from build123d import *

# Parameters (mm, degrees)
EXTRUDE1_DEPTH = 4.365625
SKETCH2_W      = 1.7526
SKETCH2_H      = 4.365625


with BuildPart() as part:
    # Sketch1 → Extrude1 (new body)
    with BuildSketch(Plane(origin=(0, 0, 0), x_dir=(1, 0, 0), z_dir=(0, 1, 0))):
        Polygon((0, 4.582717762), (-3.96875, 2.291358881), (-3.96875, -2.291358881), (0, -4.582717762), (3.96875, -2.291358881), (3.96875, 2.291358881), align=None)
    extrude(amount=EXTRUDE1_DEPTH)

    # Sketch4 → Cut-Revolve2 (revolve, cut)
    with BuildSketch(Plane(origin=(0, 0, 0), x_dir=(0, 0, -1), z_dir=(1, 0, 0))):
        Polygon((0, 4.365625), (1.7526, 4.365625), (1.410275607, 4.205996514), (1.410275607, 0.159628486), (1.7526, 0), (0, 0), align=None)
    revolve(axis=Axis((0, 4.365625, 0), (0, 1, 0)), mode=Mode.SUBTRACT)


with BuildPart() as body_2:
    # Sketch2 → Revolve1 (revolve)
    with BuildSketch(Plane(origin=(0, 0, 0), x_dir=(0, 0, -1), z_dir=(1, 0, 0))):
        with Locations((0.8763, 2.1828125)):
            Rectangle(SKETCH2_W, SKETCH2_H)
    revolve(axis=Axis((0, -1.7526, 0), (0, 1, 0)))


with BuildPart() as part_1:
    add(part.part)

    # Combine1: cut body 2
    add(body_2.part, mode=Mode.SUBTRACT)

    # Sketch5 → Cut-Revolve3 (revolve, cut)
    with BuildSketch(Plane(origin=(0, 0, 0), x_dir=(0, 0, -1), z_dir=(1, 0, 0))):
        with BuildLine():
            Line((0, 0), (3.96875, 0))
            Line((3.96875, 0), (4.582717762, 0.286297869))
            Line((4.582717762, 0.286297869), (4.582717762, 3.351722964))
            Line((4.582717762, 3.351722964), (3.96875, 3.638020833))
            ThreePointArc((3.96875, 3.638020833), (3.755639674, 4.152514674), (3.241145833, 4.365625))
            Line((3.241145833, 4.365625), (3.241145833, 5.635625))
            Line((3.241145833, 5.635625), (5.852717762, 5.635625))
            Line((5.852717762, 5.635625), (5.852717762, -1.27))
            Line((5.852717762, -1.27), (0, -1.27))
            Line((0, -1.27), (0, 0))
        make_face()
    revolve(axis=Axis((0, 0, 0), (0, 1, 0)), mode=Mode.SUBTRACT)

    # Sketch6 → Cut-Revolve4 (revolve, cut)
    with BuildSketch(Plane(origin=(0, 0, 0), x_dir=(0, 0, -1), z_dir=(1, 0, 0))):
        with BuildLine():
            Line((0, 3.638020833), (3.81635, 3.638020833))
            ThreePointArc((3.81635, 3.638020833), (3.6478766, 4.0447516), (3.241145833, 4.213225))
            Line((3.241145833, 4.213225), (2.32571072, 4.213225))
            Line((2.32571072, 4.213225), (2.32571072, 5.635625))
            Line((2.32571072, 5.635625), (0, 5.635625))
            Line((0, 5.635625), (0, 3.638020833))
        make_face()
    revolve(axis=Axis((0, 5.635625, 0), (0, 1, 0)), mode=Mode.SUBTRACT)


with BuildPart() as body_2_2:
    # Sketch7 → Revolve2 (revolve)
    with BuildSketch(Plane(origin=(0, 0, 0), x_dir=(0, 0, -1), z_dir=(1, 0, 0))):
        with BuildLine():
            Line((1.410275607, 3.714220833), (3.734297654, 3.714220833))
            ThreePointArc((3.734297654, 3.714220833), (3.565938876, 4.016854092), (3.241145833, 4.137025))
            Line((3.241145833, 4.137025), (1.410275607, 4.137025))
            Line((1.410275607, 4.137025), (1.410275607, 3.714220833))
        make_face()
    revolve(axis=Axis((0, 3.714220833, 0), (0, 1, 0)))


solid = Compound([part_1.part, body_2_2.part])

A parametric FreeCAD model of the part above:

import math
import FreeCAD as App
import Part
import Sketcher

V = App.Vector
Q = App.Units.Quantity


def add_polygon(sketch, points):
    """Adds a closed chain of lines whose ends are joined by coincident constraints."""
    first, n = sketch.GeometryCount, len(points)
    for a, b in zip(points, points[1:] + points[:1]):
        sketch.addGeometry(Part.LineSegment(App.Vector(*a, 0), App.Vector(*b, 0)), False)
    for i in range(n):
        sketch.addConstraint(Sketcher.Constraint("Coincident", first + i, 2, first + (i + 1) % n, 1))

doc = App.newDocument("Part")
body = doc.addObject("PartDesign::Body", "Body")

# Sketch on XZ plane
sketch1 = doc.addObject("Sketcher::SketchObject", "Sketch")
body.addObject(sketch1)
sketch1.AttachmentSupport = (doc.XZ_Plane, [""])
sketch1.MapMode = "FlatFace"
add_polygon(sketch1, [(0, -4.582718), (-3.96875, -2.291359), (-3.96875, 2.291359), (0, 4.582718), (3.96875, 2.291359), (3.96875, -2.291359)])  # lines 0-5
sketch1.addConstraint(Sketcher.Constraint("Vertical", 1))
sketch1.addConstraint(Sketcher.Constraint("Vertical", 4))
sketch1.addConstraint(Sketcher.Constraint("Symmetric", 0, 2, 3, 2, -1, 1))
sketch1.addConstraint(Sketcher.Constraint("Symmetric", 2, 2, 5, 2, -1, 1))
sketch1.addConstraint(Sketcher.Constraint("PointOnObject", 2, 2, -2))
sketch1.addConstraint(Sketcher.Constraint("Parallel", 2, 5))
sketch1.addConstraint(Sketcher.Constraint("Horizontal", 1, 2, 3, 2))
sketch1.addConstraint(Sketcher.Constraint("Angle", 0, Q("150 deg")))
sketch1.addConstraint(Sketcher.Constraint("DistanceX", 0, 2, -1, 1, Q("0.15625 in")))
sketch1.addConstraint(Sketcher.Constraint("DistanceY", 1, 1, 1, 2, 4.582718))
pad1 = doc.addObject("PartDesign::Pad", "Pad")
body.addObject(pad1)
pad1.Profile = sketch1
pad1.Length = Q("0.171875 in")
pad1.Reversed = True

# Sketch on YZ plane
sketch2 = doc.addObject("Sketcher::SketchObject", "Sketch001")
body.addObject(sketch2)
sketch2.AttachmentSupport = (doc.YZ_Plane, [""])
sketch2.MapMode = "FlatFace"
add_polygon(sketch2, [(4.365625, -1.7526), (4.365625, 0), (0, 0), (0, -1.7526), (0.159628, -1.410276), (4.205997, -1.410276)])  # lines 0-5
sketch2.addConstraint(Sketcher.Constraint("Vertical", 0))
sketch2.addConstraint(Sketcher.Constraint("Horizontal", 1))
sketch2.addConstraint(Sketcher.Constraint("Vertical", 2))
sketch2.addConstraint(Sketcher.Constraint("Horizontal", 4))
sketch2.addConstraint(Sketcher.Constraint("Coincident", 1, 2, -1, 1))
sketch2.addConstraint(Sketcher.Constraint("Horizontal", 2, 2, 5, 2))
sketch2.addConstraint(Sketcher.Constraint("Equal", 3, 5))
sketch2.addConstraint(Sketcher.Constraint("Angle", 3, Q("65 deg")))
sketch2.addConstraint(Sketcher.Constraint("DistanceX", 1, 2, 1, 1, Q("0.171875 in")))
sketch2.addConstraint(Sketcher.Constraint("DistanceY", 0, 1, 0, 2, Q("0.069 in")))
sketch2.addConstraint(Sketcher.Constraint("DistanceX", 4, 1, 4, 2, 4.046368))
groove = doc.addObject("PartDesign::Groove", "Groove")
body.addObject(groove)
groove.Profile = sketch2
groove.ReferenceAxis = (sketch2, ["H_Axis"])
groove.Angle = 360
body2 = doc.addObject("PartDesign::Body", "Body001")

# Sketch on YZ plane
sketch3 = doc.addObject("Sketcher::SketchObject", "Sketch002")
body2.addObject(sketch3)
sketch3.AttachmentSupport = (doc.getObject("YZ_Plane001"), [""])
sketch3.MapMode = "FlatFace"
add_polygon(sketch3, [(4.365625, 0), (0, 0), (0, -1.7526), (4.365625, -1.7526)])  # lines 0-3
sketch3.addConstraint(Sketcher.Constraint("Horizontal", 0))
sketch3.addConstraint(Sketcher.Constraint("Vertical", 1))
sketch3.addConstraint(Sketcher.Constraint("Horizontal", 2))
sketch3.addConstraint(Sketcher.Constraint("Vertical", 3))
sketch3.addConstraint(Sketcher.Constraint("Coincident", 0, 2, -1, 1))
sketch3.addConstraint(Sketcher.Constraint("DistanceX", 0, 2, 0, 1, Q("0.171875 in")))
sketch3.addConstraint(Sketcher.Constraint("DistanceY", 1, 2, 1, 1, Q("0.069 in")))
revolution = doc.addObject("PartDesign::Revolution", "Revolution")
body2.addObject(revolution)
revolution.Profile = sketch3
revolution.ReferenceAxis = (sketch3, ["H_Axis"])
revolution.Angle = 360
doc.recompute()

boolean = doc.addObject("PartDesign::Boolean", "Boolean")
body.addObject(boolean)
boolean.Type = "Cut"
boolean.addObjects([body2])

# Sketch on YZ plane
sketch4 = doc.addObject("Sketcher::SketchObject", "Sketch003")
body.addObject(sketch4)
sketch4.AttachmentSupport = (doc.YZ_Plane, [""])
sketch4.MapMode = "FlatFace"
sketch4.addGeometry(Part.LineSegment(V(0, -3.96875, 0), V(0, 0, 0)), False)
sketch4.addGeometry(Part.LineSegment(V(0, 0, 0), V(-1.27, 0, 0)), False)
sketch4.addGeometry(Part.LineSegment(V(-1.27, 0, 0), V(-1.27, -5.852718, 0)), False)
sketch4.addGeometry(Part.LineSegment(V(-1.27, -5.852718, 0), V(5.635625, -5.852718, 0)), False)
sketch4.addGeometry(Part.LineSegment(V(5.635625, -5.852718, 0), V(5.635625, -3.241146, 0)), False)
sketch4.addGeometry(Part.LineSegment(V(5.635625, -3.241146, 0), V(4.365625, -3.241146, 0)), False)
sketch4.addGeometry(Part.ArcOfCircle(Part.Circle(V(3.638021, -3.241146, 0), V(0, 0, 1), 0.727604), math.radians(-90), math.radians(0)), False)
sketch4.addGeometry(Part.LineSegment(V(3.638021, -3.96875, 0), V(3.351723, -4.582718, 0)), False)
sketch4.addGeometry(Part.LineSegment(V(3.351723, -4.582718, 0), V(0.286298, -4.582718, 0)), False)
sketch4.addGeometry(Part.LineSegment(V(0.286298, -4.582718, 0), V(0, -3.96875, 0)), False)
sketch4.addConstraint(Sketcher.Constraint("Coincident", 0, 2, 1, 1))
sketch4.addConstraint(Sketcher.Constraint("Coincident", 1, 2, 2, 1))
sketch4.addConstraint(Sketcher.Constraint("Coincident", 2, 2, 3, 1))
sketch4.addConstraint(Sketcher.Constraint("Coincident", 3, 2, 4, 1))
sketch4.addConstraint(Sketcher.Constraint("Coincident", 4, 2, 5, 1))
sketch4.addConstraint(Sketcher.Constraint("Coincident", 5, 2, 6, 2))
sketch4.addConstraint(Sketcher.Constraint("Coincident", 6, 1, 7, 1))
sketch4.addConstraint(Sketcher.Constraint("Coincident", 7, 2, 8, 1))
sketch4.addConstraint(Sketcher.Constraint("Coincident", 8, 2, 9, 1))
sketch4.addConstraint(Sketcher.Constraint("Coincident", 9, 2, 0, 1))
sketch4.addConstraint(Sketcher.Constraint("Vertical", 0))
sketch4.addConstraint(Sketcher.Constraint("Horizontal", 1))
sketch4.addConstraint(Sketcher.Constraint("Vertical", 2))
sketch4.addConstraint(Sketcher.Constraint("Horizontal", 3))
sketch4.addConstraint(Sketcher.Constraint("Vertical", 4))
sketch4.addConstraint(Sketcher.Constraint("Horizontal", 5))
sketch4.addConstraint(Sketcher.Constraint("Horizontal", 8))
sketch4.addConstraint(Sketcher.Constraint("Coincident", 0, 2, -1, 1))
sketch4.addConstraint(Sketcher.Constraint("Horizontal", 6, 3, 4, 2))
sketch4.addConstraint(Sketcher.Constraint("Horizontal", 6, 1, 9, 2))
sketch4.addConstraint(Sketcher.Constraint("Equal", 1, 5))
sketch4.addConstraint(Sketcher.Constraint("Equal", 7, 9))
sketch4.addConstraint(Sketcher.Constraint("Angle", 7, Q("-115 deg")))
sketch4.addConstraint(Sketcher.Constraint("DistanceX", 1, 2, 1, 1, Q("0.05 in")))
sketch4.addConstraint(Sketcher.Constraint("DistanceY", 0, 1, 0, 2, Q("0.15625 in")))
sketch4.addConstraint(Sketcher.Constraint("DistanceY", 3, 2, 7, 2, Q("0.05 in")))
sketch4.addConstraint(Sketcher.Constraint("DistanceX", -1, 1, 5, 2, Q("0.171875 in")))
sketch4.addConstraint(Sketcher.Constraint("Radius", 6, 0.727604))
sketch4.addConstraint(Sketcher.Constraint("DistanceY", 4, 1, 4, 2, 2.611572))
sketch4.addConstraint(Sketcher.Constraint("DistanceX", 8, 2, 8, 1, 3.065425))
groove2 = doc.addObject("PartDesign::Groove", "Groove001")
body.addObject(groove2)
groove2.Profile = sketch4
groove2.ReferenceAxis = (sketch4, ["H_Axis"])
groove2.Angle = 360

# Sketch on YZ plane
sketch5 = doc.addObject("Sketcher::SketchObject", "Sketch004")
body.addObject(sketch5)
sketch5.AttachmentSupport = (doc.YZ_Plane, [""])
sketch5.MapMode = "FlatFace"
sketch5.addGeometry(Part.LineSegment(V(3.638021, 0, 0), V(3.638021, -3.81635, 0)), False)
sketch5.addGeometry(Part.ArcOfCircle(Part.Circle(V(3.638021, -3.241146, 0), V(0, 0, 1), 0.575204), math.radians(-90), math.radians(0)), False)
sketch5.addGeometry(Part.LineSegment(V(4.213225, -3.241146, 0), V(4.213225, -2.325711, 0)), False)
sketch5.addGeometry(Part.LineSegment(V(4.213225, -2.325711, 0), V(5.635625, -2.325711, 0)), False)
sketch5.addGeometry(Part.LineSegment(V(5.635625, -2.325711, 0), V(5.635625, 0, 0)), False)
sketch5.addGeometry(Part.LineSegment(V(5.635625, 0, 0), V(3.638021, 0, 0)), False)
sketch5.addConstraint(Sketcher.Constraint("Coincident", 0, 2, 1, 1))
sketch5.addConstraint(Sketcher.Constraint("Tangent", 1, 2, 2, 1))
sketch5.addConstraint(Sketcher.Constraint("Coincident", 2, 2, 3, 1))
sketch5.addConstraint(Sketcher.Constraint("Coincident", 3, 2, 4, 1))
sketch5.addConstraint(Sketcher.Constraint("Coincident", 4, 2, 5, 1))
sketch5.addConstraint(Sketcher.Constraint("Coincident", 5, 2, 0, 1))
sketch5.addConstraint(Sketcher.Constraint("Vertical", 0))
sketch5.addConstraint(Sketcher.Constraint("Vertical", 2))
sketch5.addConstraint(Sketcher.Constraint("Horizontal", 3))
sketch5.addConstraint(Sketcher.Constraint("Vertical", 4))
sketch5.addConstraint(Sketcher.Constraint("Horizontal", 5))
sketch5.addConstraint(Sketcher.Constraint("PointOnObject", 4, 2, -1))
sketch5.addConstraint(Sketcher.Constraint("Vertical", 1, 3, 0, 2))
sketch5.addConstraint(Sketcher.Constraint("DistanceX", 3, 1, 3, 2, Q("0.056 in")))
sketch5.addConstraint(Sketcher.Constraint("Radius", 1, 0.575204))
sketch5.addConstraint(Sketcher.Constraint("DistanceY", 0, 2, 0, 1, 3.81635))
sketch5.addConstraint(Sketcher.Constraint("DistanceY", 4, 1, 4, 2, 2.325711))
sketch5.addConstraint(Sketcher.Constraint("DistanceX", -1, 1, 1, 3, 3.638021))
groove3 = doc.addObject("PartDesign::Groove", "Groove002")
body.addObject(groove3)
groove3.Profile = sketch5
groove3.ReferenceAxis = (sketch5, ["H_Axis"])
groove3.Angle = 360
body3 = doc.addObject("PartDesign::Body", "Body002")

# Sketch on YZ plane
sketch6 = doc.addObject("Sketcher::SketchObject", "Sketch005")
body3.addObject(sketch6)
sketch6.AttachmentSupport = (doc.getObject("YZ_Plane002"), [""])
sketch6.MapMode = "FlatFace"
sketch6.addGeometry(Part.LineSegment(V(3.714221, -1.410276, 0), V(3.714221, -3.734298, 0)), False)
sketch6.addGeometry(Part.ArcOfCircle(Part.Circle(V(3.638021, -3.241146, 0), V(0, 0, 1), 0.499004), math.radians(-81.216332), math.radians(0)), False)
sketch6.addGeometry(Part.LineSegment(V(4.137025, -3.241146, 0), V(4.137025, -1.410276, 0)), False)
sketch6.addGeometry(Part.LineSegment(V(4.137025, -1.410276, 0), V(3.714221, -1.410276, 0)), False)
sketch6.addConstraint(Sketcher.Constraint("Coincident", 0, 2, 1, 1))
sketch6.addConstraint(Sketcher.Constraint("Tangent", 1, 2, 2, 1))
sketch6.addConstraint(Sketcher.Constraint("Coincident", 2, 2, 3, 1))
sketch6.addConstraint(Sketcher.Constraint("Coincident", 3, 2, 0, 1))
sketch6.addConstraint(Sketcher.Constraint("Vertical", 0))
sketch6.addConstraint(Sketcher.Constraint("Vertical", 2))
sketch6.addConstraint(Sketcher.Constraint("Horizontal", 3))
sketch6.addConstraint(Sketcher.Constraint("DistanceX", 1, 3, 0, 2, Q("0.003 in")))
sketch6.addConstraint(Sketcher.Constraint("Radius", 1, 0.499004))
sketch6.addConstraint(Sketcher.Constraint("DistanceY", 2, 1, 2, 2, 1.83087))
sketch6.addConstraint(Sketcher.Constraint("DistanceX", -1, 1, 1, 3, 3.638021))
sketch6.addConstraint(Sketcher.Constraint("DistanceY", 1, 3, -1, 1, 3.241146))
revolution2 = doc.addObject("PartDesign::Revolution", "Revolution001")
body3.addObject(revolution2)
revolution2.Profile = sketch6
revolution2.ReferenceAxis = (sketch6, ["H_Axis"])
revolution2.Angle = 360

doc.recompute()
